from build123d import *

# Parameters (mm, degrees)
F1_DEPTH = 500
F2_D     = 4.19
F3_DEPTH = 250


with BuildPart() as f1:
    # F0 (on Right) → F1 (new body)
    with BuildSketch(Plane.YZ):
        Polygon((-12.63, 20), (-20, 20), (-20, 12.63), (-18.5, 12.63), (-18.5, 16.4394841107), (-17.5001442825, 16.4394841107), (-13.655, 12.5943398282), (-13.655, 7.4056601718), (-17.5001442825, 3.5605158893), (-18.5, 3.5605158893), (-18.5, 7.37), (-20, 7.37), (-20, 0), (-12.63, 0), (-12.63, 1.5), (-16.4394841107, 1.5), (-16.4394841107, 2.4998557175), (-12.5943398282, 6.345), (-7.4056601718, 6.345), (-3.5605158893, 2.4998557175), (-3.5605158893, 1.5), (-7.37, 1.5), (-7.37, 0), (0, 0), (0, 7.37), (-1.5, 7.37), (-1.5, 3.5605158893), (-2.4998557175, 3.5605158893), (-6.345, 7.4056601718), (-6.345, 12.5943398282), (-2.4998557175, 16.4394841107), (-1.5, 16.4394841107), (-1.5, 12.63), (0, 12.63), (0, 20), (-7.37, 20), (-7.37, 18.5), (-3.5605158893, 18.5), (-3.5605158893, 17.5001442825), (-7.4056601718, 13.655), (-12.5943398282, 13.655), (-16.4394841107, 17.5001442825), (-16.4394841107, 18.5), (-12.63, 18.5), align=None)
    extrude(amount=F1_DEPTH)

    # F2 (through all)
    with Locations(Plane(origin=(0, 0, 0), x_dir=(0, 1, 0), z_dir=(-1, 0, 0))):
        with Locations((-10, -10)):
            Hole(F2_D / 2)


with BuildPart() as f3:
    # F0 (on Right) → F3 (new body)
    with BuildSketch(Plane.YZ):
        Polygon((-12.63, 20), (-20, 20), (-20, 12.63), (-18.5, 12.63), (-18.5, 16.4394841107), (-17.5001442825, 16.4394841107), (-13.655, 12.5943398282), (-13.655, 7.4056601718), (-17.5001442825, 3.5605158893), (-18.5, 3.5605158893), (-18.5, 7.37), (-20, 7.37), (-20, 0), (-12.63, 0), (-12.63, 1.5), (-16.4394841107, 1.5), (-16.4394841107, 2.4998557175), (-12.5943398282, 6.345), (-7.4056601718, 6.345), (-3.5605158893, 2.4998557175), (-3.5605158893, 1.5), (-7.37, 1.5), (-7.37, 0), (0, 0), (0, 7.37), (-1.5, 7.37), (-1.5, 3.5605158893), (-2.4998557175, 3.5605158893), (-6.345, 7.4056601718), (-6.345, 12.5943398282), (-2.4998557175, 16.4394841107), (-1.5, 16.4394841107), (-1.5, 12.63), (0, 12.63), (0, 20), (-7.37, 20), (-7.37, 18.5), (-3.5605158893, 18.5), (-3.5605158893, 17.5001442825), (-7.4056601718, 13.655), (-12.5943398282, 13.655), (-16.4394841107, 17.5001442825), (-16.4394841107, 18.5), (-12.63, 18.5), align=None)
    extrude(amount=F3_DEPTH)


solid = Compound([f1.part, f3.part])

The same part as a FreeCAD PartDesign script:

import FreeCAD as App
import Part
import Sketcher
Q = App.Units.Quantity


def add_polygon(sketch, points):
    """Adds a closed chain of lines whose ends are joined by coincident constraints."""
    first, n = sketch.GeometryCount, len(points)
    for a, b in zip(points, points[1:] + points[:1]):
        sketch.addGeometry(Part.LineSegment(App.Vector(*a, 0), App.Vector(*b, 0)), False)
    for i in range(n):
        sketch.addConstraint(Sketcher.Constraint("Coincident", first + i, 2, first + (i + 1) % n, 1))

doc = App.newDocument("Part")
body = doc.addObject("PartDesign::Body", "Body")

# Sketch on YZ plane
sketch1 = body.newObject("Sketcher::SketchObject", "Sketch")
sketch1.AttachmentSupport = (doc.getObject("YZ_Plane"), [""])
sketch1.MapMode = "FlatFace"
add_polygon(sketch1, [(-12.6, 20), (-20, 20), (-20, 12.6), (-18.5, 12.6), (-18.5, 16.4), (-17.5, 16.4), (-13.7, 12.6), (-13.7, 7.4), (-17.5, 3.6), (-18.5, 3.6), (-18.5, 7.4), (-20, 7.4), (-20, 0), (-12.6, 0), (-12.6, 1.5), (-16.4, 1.5), (-16.4, 2.5), (-12.6, 6.3), (-7.4, 6.3), (-3.6, 2.5), (-3.6, 1.5), (-7.4, 1.5), (-7.4, 0), (0, 0), (0, 7.4), (-1.5, 7.4), (-1.5, 3.6), (-2.5, 3.6), (-6.3, 7.4), (-6.3, 12.6), (-2.5, 16.4), (-1.5, 16.4), (-1.5, 12.6), (0, 12.6), (0, 20), (-7.4, 20), (-7.4, 18.5), (-3.6, 18.5), (-3.6, 17.5), (-7.4, 13.7), (-12.6, 13.7), (-16.4, 17.5), (-16.4, 18.5), (-12.6, 18.5)])  # lines 0-43
sketch1.addConstraint(Sketcher.Constraint("Horizontal", 0))
sketch1.addConstraint(Sketcher.Constraint("Vertical", 1))
sketch1.addConstraint(Sketcher.Constraint("Horizontal", 2))
sketch1.addConstraint(Sketcher.Constraint("Vertical", 3))
sketch1.addConstraint(Sketcher.Constraint("Horizontal", 4))
sketch1.addConstraint(Sketcher.Constraint("Vertical", 6))
sketch1.addConstraint(Sketcher.Constraint("Horizontal", 8))
sketch1.addConstraint(Sketcher.Constraint("Vertical", 9))
sketch1.addConstraint(Sketcher.Constraint("Horizontal", 10))
sketch1.addConstraint(Sketcher.Constraint("Vertical", 11))
sketch1.addConstraint(Sketcher.Constraint("Horizontal", 12))
sketch1.addConstraint(Sketcher.Constraint("Vertical", 13))
sketch1.addConstraint(Sketcher.Constraint("Horizontal", 14))
sketch1.addConstraint(Sketcher.Constraint("Vertical", 15))
sketch1.addConstraint(Sketcher.Constraint("Horizontal", 17))
sketch1.addConstraint(Sketcher.Constraint("Vertical", 19))
sketch1.addConstraint(Sketcher.Constraint("Horizontal", 20))
sketch1.addConstraint(Sketcher.Constraint("Vertical", 21))
sketch1.addConstraint(Sketcher.Constraint("Horizontal", 22))
sketch1.addConstraint(Sketcher.Constraint("Vertical", 23))
sketch1.addConstraint(Sketcher.Constraint("Horizontal", 24))
sketch1.addConstraint(Sketcher.Constraint("Vertical", 25))
sketch1.addConstraint(Sketcher.Constraint("Horizontal", 26))
sketch1.addConstraint(Sketcher.Constraint("Vertical", 28))
sketch1.addConstraint(Sketcher.Constraint("Horizontal", 30))
sketch1.addConstraint(Sketcher.Constraint("Vertical", 31))
sketch1.addConstraint(Sketcher.Constraint("Horizontal", 32))
sketch1.addConstraint(Sketcher.Constraint("Vertical", 33))
sketch1.addConstraint(Sketcher.Constraint("Horizontal", 34))
sketch1.addConstraint(Sketcher.Constraint("Vertical", 35))
sketch1.addConstraint(Sketcher.Constraint("Horizontal", 36))
sketch1.addConstraint(Sketcher.Constraint("Vertical", 37))
sketch1.addConstraint(Sketcher.Constraint("Horizontal", 39))
sketch1.addConstraint(Sketcher.Constraint("Vertical", 41))
sketch1.addConstraint(Sketcher.Constraint("Horizontal", 42))
sketch1.addConstraint(Sketcher.Constraint("Vertical", 43))
sketch1.addConstraint(Sketcher.Constraint("Coincident", 22, 2, -1, 1))
sketch1.addConstraint(Sketcher.Constraint("PointOnObject", 11, 2, -1))
sketch1.addConstraint(Sketcher.Constraint("PointOnObject", 32, 2, -2))
sketch1.addConstraint(Sketcher.Constraint("Perpendicular", 5, 7))
sketch1.addConstraint(Sketcher.Constraint("Parallel", 7, 16))
sketch1.addConstraint(Sketcher.Constraint("Perpendicular", 16, 18))
sketch1.addConstraint(Sketcher.Constraint("Parallel", 18, 27))
sketch1.addConstraint(Sketcher.Constraint("Perpendicular", 27, 29))
sketch1.addConstraint(Sketcher.Constraint("Parallel", 29, 38))
sketch1.addConstraint(Sketcher.Constraint("Perpendicular", 38, 40))
sketch1.addConstraint(Sketcher.Constraint("Horizontal", 15, 2, 18, 2))
sketch1.addConstraint(Sketcher.Constraint("Horizontal", 14, 2, 19, 2))
sketch1.addConstraint(Sketcher.Constraint("Horizontal", 10, 2, 23, 2))
sketch1.addConstraint(Sketcher.Constraint("Horizontal", 8, 2, 25, 2))
sketch1.addConstraint(Sketcher.Constraint("Horizontal", 6, 2, 27, 2))
sketch1.addConstraint(Sketcher.Constraint("Horizontal", 5, 2, 28, 2))
sketch1.addConstraint(Sketcher.Constraint("Horizontal", 4, 2, 29, 2))
sketch1.addConstraint(Sketcher.Constraint("Horizontal", 2, 2, 31, 2))
sketch1.addConstraint(Sketcher.Constraint("Horizontal", 0, 2, 33, 2))
sketch1.addConstraint(Sketcher.Constraint("Horizontal", 37, 2, 40, 2))
sketch1.addConstraint(Sketcher.Constraint("Horizontal", 36, 2, 41, 2))
sketch1.addConstraint(Sketcher.Constraint("Vertical", 4, 2, 7, 2))
sketch1.addConstraint(Sketcher.Constraint("Vertical", 3, 2, 8, 2))
sketch1.addConstraint(Sketcher.Constraint("Vertical", 1, 2, 10, 2))
sketch1.addConstraint(Sketcher.Constraint("Vertical", 26, 2, 29, 2))
sketch1.addConstraint(Sketcher.Constraint("Vertical", 25, 2, 30, 2))
sketch1.addConstraint(Sketcher.Constraint("Vertical", 21, 2, 34, 2))
sketch1.addConstraint(Sketcher.Constraint("Vertical", 19, 2, 36, 2))
sketch1.addConstraint(Sketcher.Constraint("Vertical", 17, 2, 38, 2))
sketch1.addConstraint(Sketcher.Constraint("Vertical", 16, 2, 39, 2))
sketch1.addConstraint(Sketcher.Constraint("Vertical", 13, 2, 42, 2))
sketch1.addConstraint(Sketcher.Constraint("Equal", 14, 20))
sketch1.addConstraint(Sketcher.Constraint("Equal", 12, 22))
sketch1.addConstraint(Sketcher.Constraint("Equal", 10, 24))
sketch1.addConstraint(Sketcher.Constraint("Equal", 8, 26))
sketch1.addConstraint(Sketcher.Constraint("Equal", 34, 1))
sketch1.addConstraint(Sketcher.Constraint("Equal", 42, 3))
sketch1.addConstraint(Sketcher.Constraint("Equal", 39, 6))
sketch1.addConstraint(Sketcher.Constraint("Equal", 3, 9))
sketch1.addConstraint(Sketcher.Constraint("Equal", 1, 11))
sketch1.addConstraint(Sketcher.Constraint("Equal", 32, 13))
sketch1.addConstraint(Sketcher.Constraint("Equal", 30, 15))
sketch1.addConstraint(Sketcher.Constraint("Equal", 21, 35))
sketch1.addConstraint(Sketcher.Constraint("Equal", 19, 37))
sketch1.addConstraint(Sketcher.Constraint("Equal", 7, 16))
sketch1.addConstraint(Sketcher.Constraint("DistanceX", 2, 1, 2, 2, Q("1.5 mm")))
sketch1.addConstraint(Sketcher.Constraint("DistanceX", 0, 2, -1, 1, Q("20 mm")))
sketch1.addConstraint(Sketcher.Constraint("DistanceX", 0, 2, 0, 1, Q("7.37 mm")))
sketch1.addConstraint(Sketcher.Constraint("DistanceX", 5, 2, 28, 2, Q("7.31 mm")))
sketch1.addConstraint(Sketcher.Constraint("DistanceX", 17, 1, 17, 2, Q("5.18868 mm")))
sketch1.addConstraint(Sketcher.Constraint("DistanceX", 4, 1, 4, 2, Q("0.999856 mm")))
pad1 = body.newObject("PartDesign::Pad", "Pad")
pad1.Profile = sketch1
pad1.Length = 500

# Sketch on YZ plane
sketch2 = body.newObject("Sketcher::SketchObject", "Sketch001")
sketch2.AttachmentSupport = (doc.getObject("YZ_Plane"), [""])
sketch2.MapMode = "FlatFace"
sketch2.addGeometry(Part.Circle(App.Vector(-10, 10, 0), App.Vector(0, 0, 1), 2.1), False)
sketch2.addConstraint(Sketcher.Constraint("Diameter", 0, Q("4.19 mm")))
sketch2.addConstraint(Sketcher.Constraint("DistanceX", 0, 3, -1, 1, Q("10 mm")))
sketch2.addConstraint(Sketcher.Constraint("DistanceY", -1, 1, 0, 3, Q("10 mm")))
doc.recompute()
hole = body.newObject("PartDesign::Hole", "Hole")
hole.Profile = sketch2
hole.ThreadType = "None"
hole.Diameter = 4.19
hole.DepthType = "ThroughAll"
hole.Reversed = True
body2 = doc.addObject("PartDesign::Body", "Body001")

# Sketch on YZ plane
sketch3 = body2.newObject("Sketcher::SketchObject", "Sketch002")
sketch3.AttachmentSupport = (doc.getObject("YZ_Plane001"), [""])
sketch3.MapMode = "FlatFace"
add_polygon(sketch3, [(-12.6, 20), (-20, 20), (-20, 12.6), (-18.5, 12.6), (-18.5, 16.4), (-17.5, 16.4), (-13.7, 12.6), (-13.7, 7.4), (-17.5, 3.6), (-18.5, 3.6), (-18.5, 7.4), (-20, 7.4), (-20, 0), (-12.6, 0), (-12.6, 1.5), (-16.4, 1.5), (-16.4, 2.5), (-12.6, 6.3), (-7.4, 6.3), (-3.6, 2.5), (-3.6, 1.5), (-7.4, 1.5), (-7.4, 0), (0, 0), (0, 7.4), (-1.5, 7.4), (-1.5, 3.6), (-2.5, 3.6), (-6.3, 7.4), (-6.3, 12.6), (-2.5, 16.4), (-1.5, 16.4), (-1.5, 12.6), (0, 12.6), (0, 20), (-7.4, 20), (-7.4, 18.5), (-3.6, 18.5), (-3.6, 17.5), (-7.4, 13.7), (-12.6, 13.7), (-16.4, 17.5), (-16.4, 18.5), (-12.6, 18.5)])  # lines 0-43
sketch3.addConstraint(Sketcher.Constraint("Horizontal", 0))
sketch3.addConstraint(Sketcher.Constraint("Vertical", 1))
sketch3.addConstraint(Sketcher.Constraint("Horizontal", 2))
sketch3.addConstraint(Sketcher.Constraint("Vertical", 3))
sketch3.addConstraint(Sketcher.Constraint("Horizontal", 4))
sketch3.addConstraint(Sketcher.Constraint("Vertical", 6))
sketch3.addConstraint(Sketcher.Constraint("Horizontal", 8))
sketch3.addConstraint(Sketcher.Constraint("Vertical", 9))
sketch3.addConstraint(Sketcher.Constraint("Horizontal", 10))
sketch3.addConstraint(Sketcher.Constraint("Vertical", 11))
sketch3.addConstraint(Sketcher.Constraint("Horizontal", 12))
sketch3.addConstraint(Sketcher.Constraint("Vertical", 13))
sketch3.addConstraint(Sketcher.Constraint("Horizontal", 14))
sketch3.addConstraint(Sketcher.Constraint("Vertical", 15))
sketch3.addConstraint(Sketcher.Constraint("Horizontal", 17))
sketch3.addConstraint(Sketcher.Constraint("Vertical", 19))
sketch3.addConstraint(Sketcher.Constraint("Horizontal", 20))
sketch3.addConstraint(Sketcher.Constraint("Vertical", 21))
sketch3.addConstraint(Sketcher.Constraint("Horizontal", 22))
sketch3.addConstraint(Sketcher.Constraint("Vertical", 23))
sketch3.addConstraint(Sketcher.Constraint("Horizontal", 24))
sketch3.addConstraint(Sketcher.Constraint("Vertical", 25))
sketch3.addConstraint(Sketcher.Constraint("Horizontal", 26))
sketch3.addConstraint(Sketcher.Constraint("Vertical", 28))
sketch3.addConstraint(Sketcher.Constraint("Horizontal", 30))
sketch3.addConstraint(Sketcher.Constraint("Vertical", 31))
sketch3.addConstraint(Sketcher.Constraint("Horizontal", 32))
sketch3.addConstraint(Sketcher.Constraint("Vertical", 33))
sketch3.addConstraint(Sketcher.Constraint("Horizontal", 34))
sketch3.addConstraint(Sketcher.Constraint("Vertical", 35))
sketch3.addConstraint(Sketcher.Constraint("Horizontal", 36))
sketch3.addConstraint(Sketcher.Constraint("Vertical", 37))
sketch3.addConstraint(Sketcher.Constraint("Horizontal", 39))
sketch3.addConstraint(Sketcher.Constraint("Vertical", 41))
sketch3.addConstraint(Sketcher.Constraint("Horizontal", 42))
sketch3.addConstraint(Sketcher.Constraint("Vertical", 43))
sketch3.addConstraint(Sketcher.Constraint("Coincident", 22, 2, -1, 1))
sketch3.addConstraint(Sketcher.Constraint("PointOnObject", 11, 2, -1))
sketch3.addConstraint(Sketcher.Constraint("PointOnObject", 32, 2, -2))
sketch3.addConstraint(Sketcher.Constraint("Perpendicular", 5, 7))
sketch3.addConstraint(Sketcher.Constraint("Parallel", 7, 16))
sketch3.addConstraint(Sketcher.Constraint("Perpendicular", 16, 18))
sketch3.addConstraint(Sketcher.Constraint("Parallel", 18, 27))
sketch3.addConstraint(Sketcher.Constraint("Perpendicular", 27, 29))
sketch3.addConstraint(Sketcher.Constraint("Parallel", 29, 38))
sketch3.addConstraint(Sketcher.Constraint("Perpendicular", 38, 40))
sketch3.addConstraint(Sketcher.Constraint("Horizontal", 15, 2, 18, 2))
sketch3.addConstraint(Sketcher.Constraint("Horizontal", 14, 2, 19, 2))
sketch3.addConstraint(Sketcher.Constraint("Horizontal", 10, 2, 23, 2))
sketch3.addConstraint(Sketcher.Constraint("Horizontal", 8, 2, 25, 2))
sketch3.addConstraint(Sketcher.Constraint("Horizontal", 6, 2, 27, 2))
sketch3.addConstraint(Sketcher.Constraint("Horizontal", 5, 2, 28, 2))
sketch3.addConstraint(Sketcher.Constraint("Horizontal", 4, 2, 29, 2))
sketch3.addConstraint(Sketcher.Constraint("Horizontal", 2, 2, 31, 2))
sketch3.addConstraint(Sketcher.Constraint("Horizontal", 0, 2, 33, 2))
sketch3.addConstraint(Sketcher.Constraint("Horizontal", 37, 2, 40, 2))
sketch3.addConstraint(Sketcher.Constraint("Horizontal", 36, 2, 41, 2))
sketch3.addConstraint(Sketcher.Constraint("Vertical", 4, 2, 7, 2))
sketch3.addConstraint(Sketcher.Constraint("Vertical", 3, 2, 8, 2))
sketch3.addConstraint(Sketcher.Constraint("Vertical", 1, 2, 10, 2))
sketch3.addConstraint(Sketcher.Constraint("Vertical", 26, 2, 29, 2))
sketch3.addConstraint(Sketcher.Constraint("Vertical", 25, 2, 30, 2))
sketch3.addConstraint(Sketcher.Constraint("Vertical", 21, 2, 34, 2))
sketch3.addConstraint(Sketcher.Constraint("Vertical", 19, 2, 36, 2))
sketch3.addConstraint(Sketcher.Constraint("Vertical", 17, 2, 38, 2))
sketch3.addConstraint(Sketcher.Constraint("Vertical", 16, 2, 39, 2))
sketch3.addConstraint(Sketcher.Constraint("Vertical", 13, 2, 42, 2))
sketch3.addConstraint(Sketcher.Constraint("Equal", 14, 20))
sketch3.addConstraint(Sketcher.Constraint("Equal", 12, 22))
sketch3.addConstraint(Sketcher.Constraint("Equal", 10, 24))
sketch3.addConstraint(Sketcher.Constraint("Equal", 8, 26))
sketch3.addConstraint(Sketcher.Constraint("Equal", 34, 1))
sketch3.addConstraint(Sketcher.Constraint("Equal", 42, 3))
sketch3.addConstraint(Sketcher.Constraint("Equal", 39, 6))
sketch3.addConstraint(Sketcher.Constraint("Equal", 3, 9))
sketch3.addConstraint(Sketcher.Constraint("Equal", 1, 11))
sketch3.addConstraint(Sketcher.Constraint("Equal", 32, 13))
sketch3.addConstraint(Sketcher.Constraint("Equal", 30, 15))
sketch3.addConstraint(Sketcher.Constraint("Equal", 21, 35))
sketch3.addConstraint(Sketcher.Constraint("Equal", 19, 37))
sketch3.addConstraint(Sketcher.Constraint("Equal", 7, 16))
sketch3.addConstraint(Sketcher.Constraint("DistanceX", 2, 1, 2, 2, Q("1.5 mm")))
sketch3.addConstraint(Sketcher.Constraint("DistanceX", 0, 2, -1, 1, Q("20 mm")))
sketch3.addConstraint(Sketcher.Constraint("DistanceX", 0, 2, 0, 1, Q("7.37 mm")))
sketch3.addConstraint(Sketcher.Constraint("DistanceX", 5, 2, 28, 2, Q("7.31 mm")))
sketch3.addConstraint(Sketcher.Constraint("DistanceX", 17, 1, 17, 2, Q("5.18868 mm")))
sketch3.addConstraint(Sketcher.Constraint("DistanceX", 4, 1, 4, 2, Q("0.999856 mm")))
pad2 = body2.newObject("PartDesign::Pad", "Pad001")
pad2.Profile = sketch3
pad2.Length = 250

doc.recompute()
